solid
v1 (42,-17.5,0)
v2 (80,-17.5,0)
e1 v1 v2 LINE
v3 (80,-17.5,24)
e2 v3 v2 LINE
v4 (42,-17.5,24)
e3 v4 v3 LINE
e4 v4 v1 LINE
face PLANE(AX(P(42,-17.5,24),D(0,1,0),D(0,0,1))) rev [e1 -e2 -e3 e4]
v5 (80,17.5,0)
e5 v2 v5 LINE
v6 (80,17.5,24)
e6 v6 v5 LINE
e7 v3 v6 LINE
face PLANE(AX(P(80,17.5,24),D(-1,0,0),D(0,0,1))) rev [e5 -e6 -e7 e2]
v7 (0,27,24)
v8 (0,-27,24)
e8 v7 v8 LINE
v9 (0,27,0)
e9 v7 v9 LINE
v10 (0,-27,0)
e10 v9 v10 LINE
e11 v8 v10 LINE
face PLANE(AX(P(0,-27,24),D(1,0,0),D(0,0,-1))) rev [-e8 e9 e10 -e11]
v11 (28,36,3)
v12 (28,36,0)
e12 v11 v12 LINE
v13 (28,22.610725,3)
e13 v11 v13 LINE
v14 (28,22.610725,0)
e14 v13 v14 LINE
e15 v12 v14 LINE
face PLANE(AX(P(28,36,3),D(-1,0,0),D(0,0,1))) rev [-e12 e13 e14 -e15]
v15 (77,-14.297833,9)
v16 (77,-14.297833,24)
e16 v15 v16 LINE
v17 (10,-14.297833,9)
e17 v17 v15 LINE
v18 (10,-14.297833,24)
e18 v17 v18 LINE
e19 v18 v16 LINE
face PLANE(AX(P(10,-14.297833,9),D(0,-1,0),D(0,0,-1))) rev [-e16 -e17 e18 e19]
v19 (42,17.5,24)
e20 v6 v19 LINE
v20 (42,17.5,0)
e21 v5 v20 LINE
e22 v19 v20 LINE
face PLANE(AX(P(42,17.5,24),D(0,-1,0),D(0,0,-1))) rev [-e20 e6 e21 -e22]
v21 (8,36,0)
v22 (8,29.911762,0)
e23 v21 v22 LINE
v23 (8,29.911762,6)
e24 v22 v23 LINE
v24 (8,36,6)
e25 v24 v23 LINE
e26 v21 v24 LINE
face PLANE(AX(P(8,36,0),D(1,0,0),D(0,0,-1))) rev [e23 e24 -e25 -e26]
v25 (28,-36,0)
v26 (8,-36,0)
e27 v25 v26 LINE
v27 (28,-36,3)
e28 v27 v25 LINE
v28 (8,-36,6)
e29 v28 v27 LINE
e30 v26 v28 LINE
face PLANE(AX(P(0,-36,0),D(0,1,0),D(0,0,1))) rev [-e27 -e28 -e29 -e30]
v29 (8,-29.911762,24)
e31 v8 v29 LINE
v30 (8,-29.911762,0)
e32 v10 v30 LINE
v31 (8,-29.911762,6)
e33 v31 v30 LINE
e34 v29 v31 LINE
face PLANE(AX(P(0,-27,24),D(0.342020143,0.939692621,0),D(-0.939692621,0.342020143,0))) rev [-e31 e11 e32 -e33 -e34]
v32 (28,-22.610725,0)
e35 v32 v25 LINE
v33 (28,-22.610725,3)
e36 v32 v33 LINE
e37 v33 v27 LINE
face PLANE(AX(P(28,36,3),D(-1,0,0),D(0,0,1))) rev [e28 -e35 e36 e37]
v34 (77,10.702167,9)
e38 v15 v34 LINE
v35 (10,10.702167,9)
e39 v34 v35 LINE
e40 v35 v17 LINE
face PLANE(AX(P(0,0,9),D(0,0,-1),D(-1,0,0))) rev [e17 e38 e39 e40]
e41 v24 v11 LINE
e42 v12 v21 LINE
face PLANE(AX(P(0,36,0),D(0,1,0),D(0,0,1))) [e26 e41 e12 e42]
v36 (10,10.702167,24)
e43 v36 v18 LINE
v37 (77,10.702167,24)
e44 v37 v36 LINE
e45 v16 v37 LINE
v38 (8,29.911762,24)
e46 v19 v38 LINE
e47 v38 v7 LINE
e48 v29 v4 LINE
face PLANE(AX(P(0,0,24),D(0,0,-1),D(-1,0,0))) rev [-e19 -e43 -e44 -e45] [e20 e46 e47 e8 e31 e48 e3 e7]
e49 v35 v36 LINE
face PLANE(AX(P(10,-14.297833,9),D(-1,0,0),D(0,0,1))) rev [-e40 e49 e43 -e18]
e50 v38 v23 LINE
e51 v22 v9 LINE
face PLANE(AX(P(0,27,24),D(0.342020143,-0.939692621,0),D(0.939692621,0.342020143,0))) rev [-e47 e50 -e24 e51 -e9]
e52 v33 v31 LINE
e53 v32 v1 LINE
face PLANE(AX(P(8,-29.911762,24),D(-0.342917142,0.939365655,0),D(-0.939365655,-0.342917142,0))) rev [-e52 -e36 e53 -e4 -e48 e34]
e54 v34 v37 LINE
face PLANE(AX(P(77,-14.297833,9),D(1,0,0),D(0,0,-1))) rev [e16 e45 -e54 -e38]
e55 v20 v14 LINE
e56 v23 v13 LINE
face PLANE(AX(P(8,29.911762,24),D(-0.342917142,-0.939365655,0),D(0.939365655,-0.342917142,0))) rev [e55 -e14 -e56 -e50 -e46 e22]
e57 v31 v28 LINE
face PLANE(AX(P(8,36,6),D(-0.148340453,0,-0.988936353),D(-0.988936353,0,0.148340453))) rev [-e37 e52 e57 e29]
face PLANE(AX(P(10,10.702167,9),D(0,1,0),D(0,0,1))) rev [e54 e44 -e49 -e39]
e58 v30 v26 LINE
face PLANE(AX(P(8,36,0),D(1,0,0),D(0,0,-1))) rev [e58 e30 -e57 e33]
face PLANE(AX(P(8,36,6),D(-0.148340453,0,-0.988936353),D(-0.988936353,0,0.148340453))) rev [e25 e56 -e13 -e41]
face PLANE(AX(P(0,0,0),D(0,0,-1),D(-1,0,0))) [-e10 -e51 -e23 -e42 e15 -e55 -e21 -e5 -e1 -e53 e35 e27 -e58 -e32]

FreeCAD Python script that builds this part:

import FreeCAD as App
import Part
import Sketcher

V = App.Vector
Q = App.Units.Quantity


def add_polygon(sketch, points):
    """Adds a closed chain of lines whose ends are joined by coincident constraints."""
    first, n = sketch.GeometryCount, len(points)
    for a, b in zip(points, points[1:] + points[:1]):
        sketch.addGeometry(Part.LineSegment(App.Vector(*a, 0), App.Vector(*b, 0)), False)
    for i in range(n):
        sketch.addConstraint(Sketcher.Constraint("Coincident", first + i, 2, first + (i + 1) % n, 1))

doc = App.newDocument("Part")
body = doc.addObject("PartDesign::Body", "Body")

# Sketch on XY plane
sketch1 = body.newObject("Sketcher::SketchObject", "Sketch")
sketch1.AttachmentSupport = (doc.getObject("XY_Plane"), [""])
sketch1.MapMode = "FlatFace"
add_polygon(sketch1, [(0, 27), (0, -27), (8, -30), (42, -18), (80, -18), (80, 18), (42, 18), (8, 30)])  # lines 0-7
sketch1.addConstraint([
    Sketcher.Constraint("Vertical", 0),
    Sketcher.Constraint("Horizontal", 3),
    Sketcher.Constraint("Vertical", 4),
    Sketcher.Constraint("Horizontal", 5),
    Sketcher.Constraint("Symmetric", 0, 2, 7, 2, -1, 1),
    Sketcher.Constraint("Symmetric", 2, 2, 5, 2, -1),
    Sketcher.Constraint("Symmetric", 1, 2, 6, 2, -1),
    Sketcher.Constraint("DistanceX", 3, 1, 3, 2, Q("38 mm")),
    Sketcher.Constraint("DistanceY", 0, 2, 0, 1, Q("54 mm")),
    Sketcher.Constraint("DistanceY", 4, 1, 4, 2, Q("35 mm")),
    Sketcher.Constraint("Angle", 1, Q("-20 deg")),
    Sketcher.Constraint("DistanceX", -1, 1, 1, 2, Q("8 mm")),
    Sketcher.Constraint("DistanceX", -1, 1, 2, 2, Q("42 mm")),
])
pad1 = body.newObject("PartDesign::Pad", "Pad")
pad1.Profile = sketch1
pad1.Length = 24

# Sketch on XZ plane
sketch2 = body.newObject("Sketcher::SketchObject", "Sketch001")
sketch2.AttachmentSupport = (doc.getObject("XZ_Plane"), [""])
sketch2.MapMode = "FlatFace"
add_polygon(sketch2, [(8, 0), (8, 6), (28, 3), (28, 0)])  # lines 0-3
sketch2.addConstraint([
    Sketcher.Constraint("Vertical", 0),
    Sketcher.Constraint("Vertical", 2),
    Sketcher.Constraint("Horizontal", 3),
    Sketcher.Constraint("PointOnObject", 2, 2, -1),
    Sketcher.Constraint("DistanceX", 3, 2, 3, 1, Q("20 mm")),
    Sketcher.Constraint("DistanceY", 0, 1, 0, 2, Q("6 mm")),
    Sketcher.Constraint("DistanceY", 2, 2, 2, 1, Q("3 mm")),
    Sketcher.Constraint("DistanceX", -1, 1, 0, 2, Q("8 mm")),
])
pad2 = body.newObject("PartDesign::Pad", "Pad001")
pad2.Profile = sketch2
pad2.Length = 72
pad2.Midplane = True

# Sketch on XY plane
sketch3 = body.newObject("Sketcher::SketchObject", "Sketch002")
sketch3.AttachmentSupport = (doc.getObject("XY_Plane"), [""])
sketch3.MapMode = "FlatFace"
sketch3.AttachmentOffset = App.Placement(V(0, 0, 24), App.Rotation())
add_polygon(sketch3, [(10, 11), (10, -14), (77, -14), (77, 11)])  # lines 0-3
sketch3.addConstraint([
    Sketcher.Constraint("Vertical", 0),
    Sketcher.Constraint("Horizontal", 1),
    Sketcher.Constraint("Vertical", 2),
    Sketcher.Constraint("Horizontal", 3),
    Sketcher.Constraint("DistanceX", 1, 1, 1, 2, Q("67 mm")),
    Sketcher.Constraint("DistanceY", 0, 2, 0, 1, Q("25 mm")),
    Sketcher.Constraint("DistanceX", -1, 1, 0, 2, Q("10 mm")),
    Sketcher.Constraint("DistanceY", 0, 2, -1, 1, Q("14.297833 mm")),
])
pocket1 = body.newObject("PartDesign::Pocket", "Pocket")
pocket1.Profile = sketch3
pocket1.Length = 15

doc.recompute()
